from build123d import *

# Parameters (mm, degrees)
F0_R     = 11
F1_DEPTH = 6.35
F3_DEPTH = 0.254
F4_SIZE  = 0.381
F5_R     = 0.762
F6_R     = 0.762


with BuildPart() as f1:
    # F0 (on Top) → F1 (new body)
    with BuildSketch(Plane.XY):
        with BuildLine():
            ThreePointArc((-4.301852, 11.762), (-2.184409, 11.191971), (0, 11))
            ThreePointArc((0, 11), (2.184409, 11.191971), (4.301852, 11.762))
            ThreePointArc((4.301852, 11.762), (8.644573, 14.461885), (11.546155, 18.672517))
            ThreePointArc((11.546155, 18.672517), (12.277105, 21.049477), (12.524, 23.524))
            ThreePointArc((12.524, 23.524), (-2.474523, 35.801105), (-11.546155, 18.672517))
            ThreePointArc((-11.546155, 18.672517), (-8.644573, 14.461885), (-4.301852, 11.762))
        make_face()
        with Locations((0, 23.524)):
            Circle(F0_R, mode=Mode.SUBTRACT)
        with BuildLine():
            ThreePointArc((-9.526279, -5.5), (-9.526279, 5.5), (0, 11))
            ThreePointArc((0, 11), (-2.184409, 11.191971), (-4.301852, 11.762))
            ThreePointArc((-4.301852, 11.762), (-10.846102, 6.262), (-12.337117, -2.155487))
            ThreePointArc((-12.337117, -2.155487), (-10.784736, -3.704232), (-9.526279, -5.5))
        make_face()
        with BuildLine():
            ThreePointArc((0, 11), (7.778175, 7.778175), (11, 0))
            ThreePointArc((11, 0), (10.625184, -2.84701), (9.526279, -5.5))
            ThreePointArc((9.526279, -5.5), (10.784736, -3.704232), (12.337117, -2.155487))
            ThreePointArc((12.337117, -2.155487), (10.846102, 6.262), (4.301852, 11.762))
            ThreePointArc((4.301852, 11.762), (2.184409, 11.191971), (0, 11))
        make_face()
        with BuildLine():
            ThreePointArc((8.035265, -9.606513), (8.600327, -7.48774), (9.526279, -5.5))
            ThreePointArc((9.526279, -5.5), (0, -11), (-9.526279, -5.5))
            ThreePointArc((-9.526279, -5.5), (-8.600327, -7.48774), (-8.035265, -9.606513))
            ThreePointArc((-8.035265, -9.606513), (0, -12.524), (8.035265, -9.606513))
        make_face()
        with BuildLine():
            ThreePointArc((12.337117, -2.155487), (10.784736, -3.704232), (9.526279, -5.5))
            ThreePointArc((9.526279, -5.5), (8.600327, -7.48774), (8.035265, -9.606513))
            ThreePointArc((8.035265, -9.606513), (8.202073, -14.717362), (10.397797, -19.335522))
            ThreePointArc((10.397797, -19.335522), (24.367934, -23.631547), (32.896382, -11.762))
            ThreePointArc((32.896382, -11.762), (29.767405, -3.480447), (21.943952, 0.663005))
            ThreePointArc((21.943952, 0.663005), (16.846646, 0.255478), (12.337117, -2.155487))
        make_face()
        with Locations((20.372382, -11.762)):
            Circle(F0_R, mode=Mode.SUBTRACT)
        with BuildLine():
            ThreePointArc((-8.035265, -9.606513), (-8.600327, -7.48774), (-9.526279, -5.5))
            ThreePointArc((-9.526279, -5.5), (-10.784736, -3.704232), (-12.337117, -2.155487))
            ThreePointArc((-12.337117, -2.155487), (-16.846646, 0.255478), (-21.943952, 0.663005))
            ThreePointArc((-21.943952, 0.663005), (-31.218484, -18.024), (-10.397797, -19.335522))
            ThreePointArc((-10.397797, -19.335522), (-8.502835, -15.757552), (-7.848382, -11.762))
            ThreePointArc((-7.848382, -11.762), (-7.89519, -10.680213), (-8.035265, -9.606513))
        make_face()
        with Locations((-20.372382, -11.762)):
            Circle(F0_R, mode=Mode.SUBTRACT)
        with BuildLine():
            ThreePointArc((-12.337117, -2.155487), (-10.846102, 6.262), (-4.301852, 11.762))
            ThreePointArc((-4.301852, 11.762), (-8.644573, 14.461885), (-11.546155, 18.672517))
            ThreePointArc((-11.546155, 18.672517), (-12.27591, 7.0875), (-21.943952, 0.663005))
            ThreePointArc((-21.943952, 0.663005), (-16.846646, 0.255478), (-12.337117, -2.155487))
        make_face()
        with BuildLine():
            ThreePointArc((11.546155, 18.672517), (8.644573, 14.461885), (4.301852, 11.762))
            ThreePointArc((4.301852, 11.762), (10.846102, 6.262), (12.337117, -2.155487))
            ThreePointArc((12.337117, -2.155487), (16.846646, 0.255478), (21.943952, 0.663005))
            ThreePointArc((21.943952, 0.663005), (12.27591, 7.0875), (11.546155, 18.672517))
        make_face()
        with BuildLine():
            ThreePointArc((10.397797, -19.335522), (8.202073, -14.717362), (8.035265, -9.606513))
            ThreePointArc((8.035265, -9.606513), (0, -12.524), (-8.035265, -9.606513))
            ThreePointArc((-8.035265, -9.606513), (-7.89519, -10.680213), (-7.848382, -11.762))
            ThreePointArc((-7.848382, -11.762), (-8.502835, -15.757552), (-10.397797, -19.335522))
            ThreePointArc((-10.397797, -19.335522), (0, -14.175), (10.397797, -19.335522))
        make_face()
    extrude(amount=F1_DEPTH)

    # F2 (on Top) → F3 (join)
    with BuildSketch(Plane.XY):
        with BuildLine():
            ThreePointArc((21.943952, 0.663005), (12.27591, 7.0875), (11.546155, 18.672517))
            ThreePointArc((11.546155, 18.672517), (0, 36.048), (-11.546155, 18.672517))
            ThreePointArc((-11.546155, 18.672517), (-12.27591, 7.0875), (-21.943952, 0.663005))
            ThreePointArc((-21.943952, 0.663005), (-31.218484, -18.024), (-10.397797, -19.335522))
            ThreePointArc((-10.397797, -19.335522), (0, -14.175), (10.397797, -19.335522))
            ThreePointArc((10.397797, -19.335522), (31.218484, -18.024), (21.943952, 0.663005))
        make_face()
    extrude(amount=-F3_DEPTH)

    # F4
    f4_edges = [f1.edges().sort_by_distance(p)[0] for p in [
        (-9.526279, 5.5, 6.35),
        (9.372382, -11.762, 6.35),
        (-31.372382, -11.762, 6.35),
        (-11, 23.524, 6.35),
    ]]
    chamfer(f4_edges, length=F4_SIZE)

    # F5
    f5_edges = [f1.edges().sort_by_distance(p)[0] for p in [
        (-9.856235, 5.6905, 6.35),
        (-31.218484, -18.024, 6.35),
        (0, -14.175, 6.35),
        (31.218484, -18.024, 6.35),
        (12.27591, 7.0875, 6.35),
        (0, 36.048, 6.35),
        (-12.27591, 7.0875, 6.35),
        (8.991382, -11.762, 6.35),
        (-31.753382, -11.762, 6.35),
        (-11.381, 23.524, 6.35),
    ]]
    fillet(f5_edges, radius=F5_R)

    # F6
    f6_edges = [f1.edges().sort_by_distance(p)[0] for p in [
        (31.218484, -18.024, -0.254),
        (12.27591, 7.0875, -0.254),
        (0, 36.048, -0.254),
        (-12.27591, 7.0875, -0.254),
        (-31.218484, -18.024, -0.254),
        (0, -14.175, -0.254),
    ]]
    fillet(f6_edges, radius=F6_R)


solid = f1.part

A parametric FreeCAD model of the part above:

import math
import FreeCAD as App
import Part
import Sketcher

V = App.Vector
Q = App.Units.Quantity


def edges_at(feature, points):
    """Names of the edges that pass closest to the given points."""
    edges = feature.Shape.Edges
    near = lambda p: min(range(len(edges)), key=lambda i: edges[i].distToShape(Part.Vertex(*p))[0])
    return sorted({f"Edge{near(p) + 1}" for p in points})

doc = App.newDocument("Part")
body = doc.addObject("PartDesign::Body", "Body")

sketch1 = doc.addObject("Sketcher::SketchObject", "Sketch")
body.addObject(sketch1)
sketch1.AttachmentSupport = (doc.XY_Plane, [""])
sketch1.MapMode = "FlatFace"
sketch1.addGeometry([
    Part.ArcOfCircle(Part.Circle(V(0, 23.5, 0), V(0, 0, 1), 12.5), math.radians(0), math.radians(203)),
    Part.ArcOfCircle(Part.Circle(V(-23.6, 13.6, 0), V(0, 0, 1), 13.1), math.radians(-83), math.radians(23)),
    Part.ArcOfCircle(Part.Circle(V(-20.4, -11.8, 0), V(0, 0, 1), 12.5), math.radians(97), math.radians(323)),
    Part.ArcOfCircle(Part.Circle(V(0, -27.2, 0), V(0, 0, 1), 13.1), math.radians(37), math.radians(143)),
    Part.ArcOfCircle(Part.Circle(V(20.4, -11.8, 0), V(0, 0, 1), 12.5), math.radians(-143), math.radians(0)),
    Part.ArcOfCircle(Part.Circle(V(20.4, -11.8, 0), V(0, 0, 1), 12.5), math.radians(0), math.radians(83)),
    Part.ArcOfCircle(Part.Circle(V(23.6, 13.6, 0), V(0, 0, 1), 13.1), math.radians(157), math.radians(263)),
    Part.ArcOfCircle(Part.Circle(V(0, 23.5, 0), V(0, 0, 1), 12.5), math.radians(-23), math.radians(0)),
    Part.Circle(V(-20.4, -11.8, 0), V(0, 0, 1), 11),
    Part.Circle(V(20.4, -11.8, 0), V(0, 0, 1), 11),
    Part.ArcOfCircle(Part.Circle(V(0, 0, 0), V(0, 0, 1), 11), math.radians(-150), math.radians(-30)),
    Part.ArcOfCircle(Part.Circle(V(0, 0, 0), V(0, 0, 1), 11), math.radians(90), math.radians(210)),
    Part.ArcOfCircle(Part.Circle(V(0, 0, 0), V(0, 0, 1), 11), math.radians(0), math.radians(90)),
    Part.ArcOfCircle(Part.Circle(V(0, 0, 0), V(0, 0, 1), 11), math.radians(-30), math.radians(0)),
    Part.Circle(V(0, 23.5, 0), V(0, 0, 1), 11),
], False)
sketch1.addConstraint([
    Sketcher.Constraint("Tangent", 0, 2, 1, 2),
    Sketcher.Constraint("Tangent", 1, 1, 2, 1),
    Sketcher.Constraint("Tangent", 2, 2, 3, 2),
    Sketcher.Constraint("Tangent", 3, 1, 4, 1),
    Sketcher.Constraint("Tangent", 4, 2, 5, 1),
    Sketcher.Constraint("Tangent", 5, 2, 6, 2),
    Sketcher.Constraint("Tangent", 6, 1, 7, 1),
    Sketcher.Constraint("Tangent", 7, 2, 0, 1),
    Sketcher.Constraint("Tangent", 10, 1, 11, 2),
    Sketcher.Constraint("Tangent", 11, 1, 12, 2),
    Sketcher.Constraint("Tangent", 12, 1, 13, 2),
    Sketcher.Constraint("Tangent", 13, 1, 10, 2),
    Sketcher.Constraint("Coincident", 10, 3, -1, 1),
    Sketcher.Constraint("Coincident", 8, 3, 2, 3),
    Sketcher.Constraint("Coincident", 9, 3, 4, 3),
    Sketcher.Constraint("Coincident", 14, 3, 0, 3),
    Sketcher.Constraint("Equal", 0, 2),
    Sketcher.Constraint("Equal", 1, 3),
    Sketcher.Constraint("Equal", 2, 4),
    Sketcher.Constraint("Equal", 4, 5),
    Sketcher.Constraint("Equal", 3, 6),
    Sketcher.Constraint("Equal", 8, 9),
    Sketcher.Constraint("Equal", 9, 10),
    Sketcher.Constraint("Equal", 10, 11),
    Sketcher.Constraint("Equal", 12, 14),
    Sketcher.Constraint("Symmetric", 2, 3, 4, 3, -2),
    Sketcher.Constraint("Symmetric", 0, 2, 6, 1, -2),
    Sketcher.Constraint("PointOnObject", 11, 1, -2),
    Sketcher.Constraint("PointOnObject", 12, 1, -1),
    Sketcher.Constraint("Horizontal", 9, 3, 4, 2),
    Sketcher.Constraint("Horizontal", 14, 3, 7, 2),
    Sketcher.Constraint("Horizontal", 10, 1, 13, 1),
    Sketcher.Constraint("Diameter", 8, 22.0),
    Sketcher.Constraint("Radius", 0, 12.524),
    Sketcher.Constraint("Radius", 1, 13.055381),
    Sketcher.Constraint("DistanceX", 2, 3, 2, 2, Q("0.3927002 in")),
    Sketcher.Constraint("DistanceX", 6, 3, 4, 2, Q("0.3667 in")),
    Sketcher.Constraint("DistanceY", -1, 1, 0, 3, 23.524),
    Sketcher.Constraint("DistanceY", 10, 1, -1, 1, 5.5),
])
pad1 = doc.addObject("PartDesign::Pad", "Pad")
body.addObject(pad1)
pad1.Profile = sketch1
pad1.Length = Q("0.25 in")

sketch2 = doc.addObject("Sketcher::SketchObject", "Sketch001")
body.addObject(sketch2)
sketch2.AttachmentSupport = (doc.XY_Plane, [""])
sketch2.MapMode = "FlatFace"
sketch2.addGeometry([
    Part.ArcOfCircle(Part.Circle(V(24, 14, 0), V(0, 0, 1), 13), math.radians(157), math.radians(263)),
    Part.ArcOfCircle(Part.Circle(V(0, 24, 0), V(0, 0, 1), 13), math.radians(-23), math.radians(203)),
    Part.ArcOfCircle(Part.Circle(V(-24, 14, 0), V(0, 0, 1), 13), math.radians(-83), math.radians(23)),
    Part.ArcOfCircle(Part.Circle(V(-20, -12, 0), V(0, 0, 1), 13), math.radians(97), math.radians(323)),
    Part.ArcOfCircle(Part.Circle(V(0, -27, 0), V(0, 0, 1), 13), math.radians(37), math.radians(143)),
    Part.ArcOfCircle(Part.Circle(V(20, -12, 0), V(0, 0, 1), 13), math.radians(-143), math.radians(83)),
], False)
sketch2.addConstraint([
    Sketcher.Constraint("Tangent", 0, 1, 1, 1),
    Sketcher.Constraint("Tangent", 1, 2, 2, 2),
    Sketcher.Constraint("Tangent", 2, 1, 3, 1),
    Sketcher.Constraint("Tangent", 3, 2, 4, 2),
    Sketcher.Constraint("Tangent", 4, 1, 5, 1),
    Sketcher.Constraint("Tangent", 5, 2, 0, 2),
    Sketcher.Constraint("Equal", 0, 2),
    Sketcher.Constraint("Equal", 1, 3),
    Sketcher.Constraint("Equal", 2, 4),
    Sketcher.Constraint("Equal", 3, 5),
    Sketcher.Constraint("Symmetric", 0, 3, 2, 3, -2),
    Sketcher.Constraint("PointOnObject", 4, 3, -2),
    Sketcher.Constraint("Radius", 1, 12.524),
    Sketcher.Constraint("Radius", 0, 13.055381),
    Sketcher.Constraint("DistanceX", 3, 3, 3, 2, Q("0.3927002 in")),
    Sketcher.Constraint("DistanceX", -1, 1, 0, 3, 23.582201),
    Sketcher.Constraint("DistanceY", -1, 1, 1, 3, 23.524),
])
pad2 = doc.addObject("PartDesign::Pad", "Pad001")
body.addObject(pad2)
pad2.Profile = sketch2
pad2.Length = Q("0.01 in")
pad2.Reversed = True
doc.recompute()

chamfer = doc.addObject("PartDesign::Chamfer", "Chamfer")
body.addObject(chamfer)
chamfer.Base = (pad2, edges_at(pad2, [
    (-9.526, 5.5, 6.35),
    (9.372, -11.762, 6.35),
    (-31.372, -11.762, 6.35),
    (-11, 23.524, 6.35),
]))
chamfer.Size = Q("0.015 in")
doc.recompute()

fillet = doc.addObject("PartDesign::Fillet", "Fillet")
body.addObject(fillet)
fillet.Base = (chamfer, edges_at(chamfer, [
    (-9.856, 5.69, 6.35),
    (-31.218, -18.024, 6.35),
    (0, -14.175, 6.35),
    (24.368, -23.632, 6.35),
    (12.276, 7.087, 6.35),
    (-2.475, 35.801, 6.35),
    (-12.276, 7.087, 6.35),
    (8.991, -11.762, 6.35),
    (-31.753, -11.762, 6.35),
    (-11.381, 23.524, 6.35),
]))
fillet.Radius = Q("0.03 in")
doc.recompute()

fillet2 = doc.addObject("PartDesign::Fillet", "Fillet001")
body.addObject(fillet2)
fillet2.Base = (fillet, edges_at(fillet, [
    (31.218, -18.024, -0.254),
    (12.276, 7.087, -0.254),
    (0, 36.048, -0.254),
    (-12.276, 7.087, -0.254),
    (-31.218, -18.024, -0.254),
    (0, -14.175, -0.254),
]))
fillet2.Radius = Q("0.03 in")

doc.recompute()
